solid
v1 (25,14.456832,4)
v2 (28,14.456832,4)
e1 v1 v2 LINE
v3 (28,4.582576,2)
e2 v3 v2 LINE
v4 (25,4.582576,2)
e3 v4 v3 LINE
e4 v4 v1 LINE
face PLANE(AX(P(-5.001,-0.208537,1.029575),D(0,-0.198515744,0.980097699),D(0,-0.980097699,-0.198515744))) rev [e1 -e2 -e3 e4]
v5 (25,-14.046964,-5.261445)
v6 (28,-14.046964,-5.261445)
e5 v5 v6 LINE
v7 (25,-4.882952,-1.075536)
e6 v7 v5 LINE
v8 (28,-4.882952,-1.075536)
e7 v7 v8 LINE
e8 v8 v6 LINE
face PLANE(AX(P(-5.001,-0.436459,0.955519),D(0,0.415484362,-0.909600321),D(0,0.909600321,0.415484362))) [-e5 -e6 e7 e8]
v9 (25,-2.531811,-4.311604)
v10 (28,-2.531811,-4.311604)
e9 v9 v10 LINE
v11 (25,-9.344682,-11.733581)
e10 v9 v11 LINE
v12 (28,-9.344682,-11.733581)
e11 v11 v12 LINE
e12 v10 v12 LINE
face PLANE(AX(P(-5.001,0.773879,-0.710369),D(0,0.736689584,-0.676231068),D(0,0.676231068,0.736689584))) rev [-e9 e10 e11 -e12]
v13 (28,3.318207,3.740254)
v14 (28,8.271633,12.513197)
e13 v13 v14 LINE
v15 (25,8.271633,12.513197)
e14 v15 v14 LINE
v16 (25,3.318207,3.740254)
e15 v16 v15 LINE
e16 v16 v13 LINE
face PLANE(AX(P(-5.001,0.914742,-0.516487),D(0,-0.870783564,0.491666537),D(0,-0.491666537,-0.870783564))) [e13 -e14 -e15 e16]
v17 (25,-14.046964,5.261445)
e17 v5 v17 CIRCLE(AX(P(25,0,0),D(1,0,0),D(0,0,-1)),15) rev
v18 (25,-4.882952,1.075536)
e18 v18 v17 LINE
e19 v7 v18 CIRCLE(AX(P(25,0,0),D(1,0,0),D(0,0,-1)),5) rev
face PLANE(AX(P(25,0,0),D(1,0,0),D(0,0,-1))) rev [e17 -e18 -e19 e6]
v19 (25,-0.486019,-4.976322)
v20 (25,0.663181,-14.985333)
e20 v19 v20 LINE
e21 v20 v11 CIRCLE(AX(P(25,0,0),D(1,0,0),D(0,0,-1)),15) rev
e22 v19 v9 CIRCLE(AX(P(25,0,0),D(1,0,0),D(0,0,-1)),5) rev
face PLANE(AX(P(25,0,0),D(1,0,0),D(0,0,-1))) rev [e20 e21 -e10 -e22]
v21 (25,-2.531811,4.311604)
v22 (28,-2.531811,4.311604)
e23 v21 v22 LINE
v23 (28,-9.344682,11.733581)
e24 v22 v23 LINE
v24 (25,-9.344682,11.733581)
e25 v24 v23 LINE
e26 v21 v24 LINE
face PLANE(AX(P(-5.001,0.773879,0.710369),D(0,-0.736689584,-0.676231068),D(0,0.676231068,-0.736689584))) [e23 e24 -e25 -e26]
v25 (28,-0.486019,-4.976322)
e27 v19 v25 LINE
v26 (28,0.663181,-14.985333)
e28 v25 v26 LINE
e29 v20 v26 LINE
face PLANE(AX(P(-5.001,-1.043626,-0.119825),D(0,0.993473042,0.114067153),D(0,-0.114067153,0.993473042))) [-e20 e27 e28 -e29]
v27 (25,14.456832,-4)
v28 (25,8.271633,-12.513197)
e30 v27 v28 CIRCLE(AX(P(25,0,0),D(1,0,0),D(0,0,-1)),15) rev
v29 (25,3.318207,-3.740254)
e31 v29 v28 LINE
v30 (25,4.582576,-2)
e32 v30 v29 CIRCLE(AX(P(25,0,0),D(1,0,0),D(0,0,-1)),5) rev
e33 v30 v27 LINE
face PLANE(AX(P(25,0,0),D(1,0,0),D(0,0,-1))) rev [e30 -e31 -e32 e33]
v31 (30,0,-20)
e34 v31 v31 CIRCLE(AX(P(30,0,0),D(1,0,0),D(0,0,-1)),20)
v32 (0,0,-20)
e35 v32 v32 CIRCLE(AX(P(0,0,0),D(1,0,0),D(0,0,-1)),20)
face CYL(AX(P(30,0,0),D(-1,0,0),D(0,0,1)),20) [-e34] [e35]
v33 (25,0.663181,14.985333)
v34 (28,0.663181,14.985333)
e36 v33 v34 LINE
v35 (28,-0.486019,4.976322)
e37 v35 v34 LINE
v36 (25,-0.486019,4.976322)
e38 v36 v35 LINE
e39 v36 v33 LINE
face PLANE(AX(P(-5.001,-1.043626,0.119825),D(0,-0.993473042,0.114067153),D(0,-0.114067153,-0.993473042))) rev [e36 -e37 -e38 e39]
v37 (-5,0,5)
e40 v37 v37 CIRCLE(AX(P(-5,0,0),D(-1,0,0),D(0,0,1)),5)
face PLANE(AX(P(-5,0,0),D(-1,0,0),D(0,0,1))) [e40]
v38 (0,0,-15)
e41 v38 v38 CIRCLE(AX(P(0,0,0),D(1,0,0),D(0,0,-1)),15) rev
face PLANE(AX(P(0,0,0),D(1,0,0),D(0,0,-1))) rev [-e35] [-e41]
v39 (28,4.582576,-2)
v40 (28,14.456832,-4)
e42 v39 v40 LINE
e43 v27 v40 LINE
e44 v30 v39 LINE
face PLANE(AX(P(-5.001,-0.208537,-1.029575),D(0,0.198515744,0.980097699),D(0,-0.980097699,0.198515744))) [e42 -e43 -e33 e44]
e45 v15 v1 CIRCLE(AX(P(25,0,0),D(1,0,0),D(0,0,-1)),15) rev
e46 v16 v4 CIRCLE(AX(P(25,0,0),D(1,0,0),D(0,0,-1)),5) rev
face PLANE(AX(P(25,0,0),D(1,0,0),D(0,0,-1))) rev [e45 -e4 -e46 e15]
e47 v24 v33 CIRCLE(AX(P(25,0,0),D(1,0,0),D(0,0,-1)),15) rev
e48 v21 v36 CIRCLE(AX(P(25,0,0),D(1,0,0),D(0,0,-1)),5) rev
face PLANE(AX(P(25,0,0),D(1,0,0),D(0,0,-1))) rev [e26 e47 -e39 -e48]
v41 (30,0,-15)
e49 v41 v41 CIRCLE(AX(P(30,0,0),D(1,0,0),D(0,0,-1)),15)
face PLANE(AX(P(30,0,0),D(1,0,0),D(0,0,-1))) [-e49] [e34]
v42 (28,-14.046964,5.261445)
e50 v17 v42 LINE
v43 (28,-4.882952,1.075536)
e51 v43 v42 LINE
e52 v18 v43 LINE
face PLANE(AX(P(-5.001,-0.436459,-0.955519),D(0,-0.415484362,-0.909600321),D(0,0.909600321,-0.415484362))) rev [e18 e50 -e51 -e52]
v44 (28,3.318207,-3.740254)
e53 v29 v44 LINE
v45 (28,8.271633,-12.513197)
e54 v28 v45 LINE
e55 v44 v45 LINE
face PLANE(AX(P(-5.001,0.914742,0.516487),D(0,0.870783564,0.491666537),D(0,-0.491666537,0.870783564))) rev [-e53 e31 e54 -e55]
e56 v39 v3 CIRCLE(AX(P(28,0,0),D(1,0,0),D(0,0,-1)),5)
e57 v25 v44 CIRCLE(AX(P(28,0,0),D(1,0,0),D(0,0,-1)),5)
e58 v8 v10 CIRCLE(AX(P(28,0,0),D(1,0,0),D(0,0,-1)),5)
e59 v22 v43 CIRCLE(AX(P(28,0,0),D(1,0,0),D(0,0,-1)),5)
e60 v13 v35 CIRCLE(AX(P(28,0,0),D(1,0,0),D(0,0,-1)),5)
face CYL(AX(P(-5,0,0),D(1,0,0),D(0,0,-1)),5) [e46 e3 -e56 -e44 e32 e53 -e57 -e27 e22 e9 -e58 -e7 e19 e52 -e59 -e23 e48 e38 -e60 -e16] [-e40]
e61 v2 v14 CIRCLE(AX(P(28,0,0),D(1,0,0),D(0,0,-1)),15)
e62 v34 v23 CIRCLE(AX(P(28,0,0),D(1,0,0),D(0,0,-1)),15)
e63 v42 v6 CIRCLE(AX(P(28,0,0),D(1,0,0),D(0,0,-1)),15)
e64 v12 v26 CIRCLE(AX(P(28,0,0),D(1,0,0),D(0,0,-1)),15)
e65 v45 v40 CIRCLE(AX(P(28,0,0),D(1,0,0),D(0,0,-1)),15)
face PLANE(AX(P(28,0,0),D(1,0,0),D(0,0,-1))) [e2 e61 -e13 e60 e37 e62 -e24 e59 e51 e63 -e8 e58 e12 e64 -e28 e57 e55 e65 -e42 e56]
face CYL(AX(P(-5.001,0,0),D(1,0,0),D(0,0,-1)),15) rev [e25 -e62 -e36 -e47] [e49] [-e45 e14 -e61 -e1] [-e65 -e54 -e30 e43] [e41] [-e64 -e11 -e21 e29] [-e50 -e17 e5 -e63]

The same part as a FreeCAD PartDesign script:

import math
import FreeCAD as App
import Part
import Sketcher

V = App.Vector
Q = App.Units.Quantity

doc = App.newDocument("Part")
body = doc.addObject("PartDesign::Body", "Body")

# Sketch on YZ plane
sketch1 = body.newObject("Sketcher::SketchObject", "Sketch")
sketch1.AttachmentSupport = (doc.getObject("YZ_Plane"), [""])
sketch1.MapMode = "FlatFace"
sketch1.addGeometry(Part.Circle(V(0, 0, 0), V(0, 0, 1), 20), False)
sketch1.addConstraint([
    Sketcher.Constraint("Coincident", 0, 3, -1, 1),
    Sketcher.Constraint("Diameter", 0, Q("40 mm")),
])
pad1 = body.newObject("PartDesign::Pad", "Pad")
pad1.Profile = sketch1
pad1.Length = 30

# Sketch on YZ plane
sketch2 = body.newObject("Sketcher::SketchObject", "Sketch001")
sketch2.AttachmentSupport = (doc.getObject("YZ_Plane"), [""])
sketch2.MapMode = "FlatFace"
sketch2.addGeometry(Part.Circle(V(0, 0, 0), V(0, 0, 1), 5), False)
sketch2.addConstraint([
    Sketcher.Constraint("Coincident", 0, 3, -1, 1),
    Sketcher.Constraint("Diameter", 0, Q("10 mm")),
])
pad2 = body.newObject("PartDesign::Pad", "Pad001")
pad2.Profile = sketch2
pad2.Length = 5
pad2.Reversed = True

# Sketch on YZ plane
sketch3 = body.newObject("Sketcher::SketchObject", "Sketch002")
sketch3.AttachmentSupport = (doc.getObject("YZ_Plane"), [""])
sketch3.MapMode = "FlatFace"
sketch3.AttachmentOffset = App.Placement(V(0, 0, 30), App.Rotation())
sketch3.addGeometry([
    Part.LineSegment(V(5, 0, 0), V(15, 0, 0)),
    Part.ArcOfCircle(Part.Circle(V(0, 0, 0), V(0, 0, 1), 15), math.radians(0), math.radians(15.46601)),
    Part.LineSegment(V(14.456832, 4, 0), V(4.582576, 2, 0)),
    Part.ArcOfCircle(Part.Circle(V(0, 0, 0), V(0, 0, 1), 5), math.radians(0), math.radians(23.578179)),
], False)
sketch3.addConstraint([
    Sketcher.Constraint("Coincident", 0, 2, 1, 1),
    Sketcher.Constraint("Coincident", 1, 2, 2, 1),
    Sketcher.Constraint("Coincident", 2, 2, 3, 2),
    Sketcher.Constraint("Coincident", 3, 1, 0, 1),
    Sketcher.Constraint("Horizontal", 0),
    Sketcher.Constraint("Coincident", 1, 3, -1, 1),
    Sketcher.Constraint("Coincident", 3, 3, -1, 1),
    Sketcher.Constraint("PointOnObject", 0, 2, -1),
    Sketcher.Constraint("Radius", 1, Q("15 mm")),
    Sketcher.Constraint("Radius", 3, Q("5 mm")),
    Sketcher.Constraint("DistanceY", -1, 1, 1, 2, Q("4 mm")),
    Sketcher.Constraint("DistanceY", -1, 1, 2, 2, Q("2 mm")),
])
pocket1 = body.newObject("PartDesign::Pocket", "Pocket")
pocket1.Profile = sketch3
pocket1.Type = "UpToFirst"

# Sketch on YZ plane
sketch4 = body.newObject("Sketcher::SketchObject", "Sketch003")
sketch4.AttachmentSupport = (doc.getObject("YZ_Plane"), [""])
sketch4.MapMode = "FlatFace"
sketch4.AttachmentOffset = App.Placement(V(0, 0, 30), App.Rotation())
sketch4.addGeometry([
    Part.ArcOfCircle(Part.Circle(V(0, 0, 0), V(0, 0, 1), 15), math.radians(-15.46601), math.radians(0)),
    Part.LineSegment(V(15, 0, 0), V(5, 0, 0)),
    Part.ArcOfCircle(Part.Circle(V(0, 0, 0), V(0, 0, 1), 5), math.radians(-23.578179), math.radians(0)),
    Part.LineSegment(V(4.582576, -2, 0), V(14.456832, -4, 0)),
], False)
sketch4.addConstraint([
    Sketcher.Constraint("Coincident", 0, 2, 1, 1),
    Sketcher.Constraint("Coincident", 1, 2, 2, 2),
    Sketcher.Constraint("Coincident", 2, 1, 3, 1),
    Sketcher.Constraint("Coincident", 3, 2, 0, 1),
    Sketcher.Constraint("Horizontal", 1),
    Sketcher.Constraint("Coincident", 0, 3, -1, 1),
    Sketcher.Constraint("Coincident", 2, 3, -1, 1),
    Sketcher.Constraint("PointOnObject", 0, 2, -1),
    Sketcher.Constraint("Radius", 0, Q("15 mm")),
    Sketcher.Constraint("Radius", 2, Q("5 mm")),
    Sketcher.Constraint("DistanceY", 2, 1, -1, 1, Q("2 mm")),
    Sketcher.Constraint("DistanceY", 3, 2, -1, 1, Q("4 mm")),
])
pocket2 = body.newObject("PartDesign::Pocket", "Pocket001")
pocket2.Profile = sketch4
pocket2.Type = "UpToFirst"

# Sketch on YZ plane
sketch5 = body.newObject("Sketcher::SketchObject", "Sketch004")
sketch5.AttachmentSupport = (doc.getObject("YZ_Plane"), [""])
sketch5.MapMode = "FlatFace"
sketch5.AttachmentOffset = App.Placement(V(0, 0, 30), App.Rotation())
sketch5.addGeometry([
    Part.LineSegment(V(3.318207, 3.740254, 0), V(8.271633, 12.513197, 0)),
    Part.ArcOfCircle(Part.Circle(V(0, 0, 0), V(0, 0, 1), 15), math.radians(56.53399), math.radians(87.46601)),
    Part.LineSegment(V(0.663181, 14.985333, 0), V(-0.486019, 4.976322, 0)),
    Part.ArcOfCircle(Part.Circle(V(0, 0, 0), V(0, 0, 1), 5), math.radians(48.421822), math.radians(95.578178)),
], False)
sketch5.addConstraint([
    Sketcher.Constraint("Coincident", 0, 2, 1, 1),
    Sketcher.Constraint("Coincident", 1, 2, 2, 1),
    Sketcher.Constraint("Coincident", 2, 2, 3, 2),
    Sketcher.Constraint("Coincident", 3, 1, 0, 1),
    Sketcher.Constraint("Coincident", 1, 3, -1, 1),
    Sketcher.Constraint("Coincident", 3, 3, -1, 1),
    Sketcher.Constraint("Equal", 0, 2),
    Sketcher.Constraint("Radius", 1, Q("15 mm")),
    Sketcher.Constraint("Radius", 3, Q("5 mm")),
    Sketcher.Constraint("DistanceX", 2, 2, 1, 2, Q("1.1492 mm")),
    Sketcher.Constraint("DistanceX", -1, 1, 1, 2, Q("0.663181 mm")),
    Sketcher.Constraint("DistanceY", 3, 1, 1, 2, Q("11.245078 mm")),
])
pocket3 = body.newObject("PartDesign::Pocket", "Pocket002")
pocket3.Profile = sketch5
pocket3.Type = "UpToFirst"

# Sketch on YZ plane
sketch6 = body.newObject("Sketcher::SketchObject", "Sketch005")
sketch6.AttachmentSupport = (doc.getObject("YZ_Plane"), [""])
sketch6.MapMode = "FlatFace"
sketch6.AttachmentOffset = App.Placement(V(0, 0, 30), App.Rotation())
sketch6.addGeometry([
    Part.LineSegment(V(-14.046964, 5.261445, 0), V(-4.882952, 1.075536, 0)),
    Part.ArcOfCircle(Part.Circle(V(0, 0, 0), V(0, 0, 1), 5), math.radians(120.421822), math.radians(167.578178)),
    Part.LineSegment(V(-2.531811, 4.311604, 0), V(-9.344682, 11.733581, 0)),
    Part.ArcOfCircle(Part.Circle(V(0, 0, 0), V(0, 0, 1), 15), math.radians(128.53399), math.radians(159.46601)),
], False)
sketch6.addConstraint([
    Sketcher.Constraint("Coincident", 0, 2, 1, 2),
    Sketcher.Constraint("Coincident", 1, 1, 2, 1),
    Sketcher.Constraint("Coincident", 2, 2, 3, 1),
    Sketcher.Constraint("Coincident", 3, 2, 0, 1),
    Sketcher.Constraint("Coincident", 1, 3, -1, 1),
    Sketcher.Constraint("Coincident", 3, 3, -1, 1),
    Sketcher.Constraint("Equal", 0, 2),
    Sketcher.Constraint("Radius", 1, Q("5 mm")),
    Sketcher.Constraint("Radius", 3, Q("15 mm")),
    Sketcher.Constraint("DistanceX", 1, 1, -1, 1, Q("2.531811 mm")),
    Sketcher.Constraint("DistanceY", -1, 1, 2, 2, Q("11.733581 mm")),
    Sketcher.Constraint("DistanceX", 0, 2, 1, 1, Q("2.351141 mm")),
])
pocket4 = body.newObject("PartDesign::Pocket", "Pocket003")
pocket4.Profile = sketch6
pocket4.Type = "UpToFirst"

# Sketch on YZ plane
sketch7 = body.newObject("Sketcher::SketchObject", "Sketch006")
sketch7.AttachmentSupport = (doc.getObject("YZ_Plane"), [""])
sketch7.MapMode = "FlatFace"
sketch7.AttachmentOffset = App.Placement(V(0, 0, 30), App.Rotation())
sketch7.addGeometry([
    Part.ArcOfCircle(Part.Circle(V(0, 0, 0), V(0, 0, 1), 5), math.radians(-167.578178), math.radians(-120.421822)),
    Part.LineSegment(V(-4.882952, -1.075536, 0), V(-14.046964, -5.261445, 0)),
    Part.ArcOfCircle(Part.Circle(V(0, 0, 0), V(0, 0, 1), 15), math.radians(-159.46601), math.radians(-128.53399)),
    Part.LineSegment(V(-9.344682, -11.733581, 0), V(-2.531811, -4.311604, 0)),
], False)
sketch7.addConstraint([
    Sketcher.Constraint("Coincident", 0, 1, 1, 1),
    Sketcher.Constraint("Coincident", 1, 2, 2, 1),
    Sketcher.Constraint("Coincident", 2, 2, 3, 1),
    Sketcher.Constraint("Coincident", 3, 2, 0, 2),
    Sketcher.Constraint("Coincident", 0, 3, -1, 1),
    Sketcher.Constraint("Coincident", 2, 3, -1, 1),
    Sketcher.Constraint("Equal", 1, 3),
    Sketcher.Constraint("Radius", 0, Q("5 mm")),
    Sketcher.Constraint("Radius", 2, Q("15 mm")),
    Sketcher.Constraint("DistanceY", 2, 2, -1, 1, Q("11.733581 mm")),
    Sketcher.Constraint("DistanceX", 3, 2, -1, 1, Q("2.531811 mm")),
    Sketcher.Constraint("DistanceX", 1, 2, 0, 1, Q("9.164012 mm")),
])
pocket5 = body.newObject("PartDesign::Pocket", "Pocket004")
pocket5.Profile = sketch7
pocket5.Type = "UpToFirst"

# Sketch on YZ plane
sketch8 = body.newObject("Sketcher::SketchObject", "Sketch007")
sketch8.AttachmentSupport = (doc.getObject("YZ_Plane"), [""])
sketch8.MapMode = "FlatFace"
sketch8.AttachmentOffset = App.Placement(V(0, 0, 30), App.Rotation())
sketch8.addGeometry([
    Part.ArcOfCircle(Part.Circle(V(0, 0, 0), V(0, 0, 1), 15), math.radians(-87.46601), math.radians(-56.53399)),  # 0
    Part.LineSegment(V(8.271633, -12.513197, 0), V(3.318207, -3.740254, 0)),  # 1
    Part.ArcOfCircle(Part.Circle(V(0, 0, 0), V(0, 0, 1), 5), math.radians(-90), math.radians(-48.421821)),  # 2
    Part.ArcOfCircle(Part.Circle(V(0, 0, 0), V(0, 0, 1), 5), math.radians(-95.578178), math.radians(-90)),  # 3
    Part.LineSegment(V(-0.486019, -4.976322, 0), V(0.663181, -14.985333, 0)),  # 4
], False)
sketch8.addConstraint([
    Sketcher.Constraint("Coincident", 0, 2, 1, 1),
    Sketcher.Constraint("Coincident", 1, 2, 2, 2),
    Sketcher.Constraint("Tangent", 2, 1, 3, 2),
    Sketcher.Constraint("Coincident", 3, 1, 4, 1),
    Sketcher.Constraint("Coincident", 4, 2, 0, 1),
    Sketcher.Constraint("Coincident", 0, 3, -1, 1),
    Sketcher.Constraint("Coincident", 2, 3, -1, 1),
    Sketcher.Constraint("Equal", 2, 3),
    Sketcher.Constraint("PointOnObject", 2, 1, -2),
    Sketcher.Constraint("Equal", 1, 4),
    Sketcher.Constraint("Radius", 0, Q("15 mm")),
    Sketcher.Constraint("Radius", 2, Q("5 mm")),
    Sketcher.Constraint("DistanceX", 3, 1, 4, 2, Q("1.1492 mm")),
    Sketcher.Constraint("DistanceX", 3, 1, -1, 1, Q("0.486019 mm")),
    Sketcher.Constraint("DistanceY", 4, 2, 1, 2, Q("11.245078 mm")),
])
pocket6 = body.newObject("PartDesign::Pocket", "Pocket005")
pocket6.Profile = sketch8
pocket6.Type = "UpToFirst"

# Sketch on YZ plane
sketch9 = body.newObject("Sketcher::SketchObject", "Sketch008")
sketch9.AttachmentSupport = (doc.getObject("YZ_Plane"), [""])
sketch9.MapMode = "FlatFace"
sketch9.AttachmentOffset = App.Placement(V(0, 0, 25), App.Rotation())
sketch9.addGeometry([
    Part.Circle(V(0, 0, 0), V(0, 0, 1), 15),
    Part.Circle(V(0, 0, 0), V(0, 0, 1), 5),
], False)
sketch9.addConstraint([
    Sketcher.Constraint("Coincident", 0, 3, -1, 1),
    Sketcher.Constraint("Coincident", 1, 3, -1, 1),
    Sketcher.Constraint("Diameter", 0, Q("30 mm")),
    Sketcher.Constraint("Diameter", 1, Q("10 mm")),
])
pocket7 = body.newObject("PartDesign::Pocket", "Pocket006")
pocket7.Profile = sketch9
pocket7.Length = 25

# Sketch on YZ plane
sketch10 = body.newObject("Sketcher::SketchObject", "Sketch009")
sketch10.AttachmentSupport = (doc.getObject("YZ_Plane"), [""])
sketch10.MapMode = "FlatFace"
sketch10.AttachmentOffset = App.Placement(V(0, 0, 30), App.Rotation())
sketch10.addGeometry(Part.Circle(V(0, 0, 0), V(0, 0, 1), 15), False)
sketch10.addConstraint([
    Sketcher.Constraint("Coincident", 0, 3, -1, 1),
    Sketcher.Constraint("Diameter", 0, Q("30 mm")),
])
pocket8 = body.newObject("PartDesign::Pocket", "Pocket007")
pocket8.Profile = sketch10
pocket8.Length = 2

doc.recompute()
